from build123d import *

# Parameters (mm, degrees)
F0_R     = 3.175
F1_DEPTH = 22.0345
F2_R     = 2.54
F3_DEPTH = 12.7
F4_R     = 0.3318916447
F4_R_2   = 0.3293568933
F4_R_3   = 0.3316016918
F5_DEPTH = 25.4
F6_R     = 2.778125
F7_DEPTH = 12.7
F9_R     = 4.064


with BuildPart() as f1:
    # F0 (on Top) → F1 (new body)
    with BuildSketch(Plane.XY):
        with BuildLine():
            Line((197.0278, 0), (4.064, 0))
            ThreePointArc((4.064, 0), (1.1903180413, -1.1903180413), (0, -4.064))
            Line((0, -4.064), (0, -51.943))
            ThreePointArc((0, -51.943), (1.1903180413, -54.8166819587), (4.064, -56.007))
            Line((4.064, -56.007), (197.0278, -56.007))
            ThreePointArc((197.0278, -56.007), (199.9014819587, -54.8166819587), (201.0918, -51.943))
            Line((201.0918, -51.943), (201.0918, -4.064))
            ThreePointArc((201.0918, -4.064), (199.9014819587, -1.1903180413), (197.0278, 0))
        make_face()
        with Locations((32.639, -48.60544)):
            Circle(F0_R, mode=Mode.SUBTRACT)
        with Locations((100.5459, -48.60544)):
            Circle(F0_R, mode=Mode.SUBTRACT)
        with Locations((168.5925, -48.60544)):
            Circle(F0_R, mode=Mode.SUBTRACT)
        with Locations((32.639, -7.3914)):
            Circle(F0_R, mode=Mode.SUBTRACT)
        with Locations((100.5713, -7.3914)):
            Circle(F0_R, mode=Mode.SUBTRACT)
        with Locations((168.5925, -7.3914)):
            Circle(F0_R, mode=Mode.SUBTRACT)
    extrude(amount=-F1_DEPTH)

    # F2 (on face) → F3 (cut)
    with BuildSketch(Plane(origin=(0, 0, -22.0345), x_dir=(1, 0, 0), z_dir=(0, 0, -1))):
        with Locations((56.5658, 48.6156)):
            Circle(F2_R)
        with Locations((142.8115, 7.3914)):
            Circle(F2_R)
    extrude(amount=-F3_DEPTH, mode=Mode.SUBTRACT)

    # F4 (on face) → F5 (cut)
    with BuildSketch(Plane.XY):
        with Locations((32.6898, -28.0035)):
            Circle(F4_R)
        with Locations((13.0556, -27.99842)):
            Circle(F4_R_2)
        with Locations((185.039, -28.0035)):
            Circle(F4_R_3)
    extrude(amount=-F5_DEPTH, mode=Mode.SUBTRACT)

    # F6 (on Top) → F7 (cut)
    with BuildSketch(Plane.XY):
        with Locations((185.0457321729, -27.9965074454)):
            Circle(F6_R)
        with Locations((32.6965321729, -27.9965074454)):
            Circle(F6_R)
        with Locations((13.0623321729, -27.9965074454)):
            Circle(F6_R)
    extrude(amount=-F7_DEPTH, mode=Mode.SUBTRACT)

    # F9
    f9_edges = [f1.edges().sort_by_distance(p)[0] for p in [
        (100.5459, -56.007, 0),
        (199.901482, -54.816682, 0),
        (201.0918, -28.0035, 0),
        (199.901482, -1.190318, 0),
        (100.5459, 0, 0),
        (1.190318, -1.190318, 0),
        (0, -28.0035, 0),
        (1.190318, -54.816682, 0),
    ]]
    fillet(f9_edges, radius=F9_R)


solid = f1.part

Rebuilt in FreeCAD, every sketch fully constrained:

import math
import FreeCAD as App
import Part
import Sketcher
Q = App.Units.Quantity


def edges_at(feature, points):
    """Names of the edges that pass closest to the given points."""
    edges = feature.Shape.Edges
    near = lambda p: min(range(len(edges)), key=lambda i: edges[i].distToShape(Part.Vertex(*p))[0])
    return sorted({f"Edge{near(p) + 1}" for p in points})

doc = App.newDocument("Part")
body = doc.addObject("PartDesign::Body", "Body")

# Sketch on XY plane
sketch1 = doc.addObject("Sketcher::SketchObject", "Sketch")
body.addObject(sketch1)
sketch1.AttachmentSupport = (doc.XY_Plane, [""])
sketch1.MapMode = "FlatFace"
sketch1.addGeometry([
    Part.LineSegment(App.Vector(197, 0, 0), App.Vector(4.1, 0, 0)),  # 0
    Part.ArcOfCircle(Part.Circle(App.Vector(4.1, -4.1, 0), App.Vector(0, 0, 1), 4.1), math.radians(90), math.radians(180)),  # 1
    Part.LineSegment(App.Vector(0, -4.1, 0), App.Vector(0, -51.9, 0)),  # 2
    Part.ArcOfCircle(Part.Circle(App.Vector(4.1, -51.9, 0), App.Vector(0, 0, 1), 4.1), math.radians(180), math.radians(270)),  # 3
    Part.LineSegment(App.Vector(4.1, -56, 0), App.Vector(197, -56, 0)),  # 4
    Part.ArcOfCircle(Part.Circle(App.Vector(197, -51.9, 0), App.Vector(0, 0, 1), 4.1), math.radians(-90), math.radians(0)),  # 5
    Part.LineSegment(App.Vector(201.1, -51.9, 0), App.Vector(201.1, -4.1, 0)),  # 6
    Part.ArcOfCircle(Part.Circle(App.Vector(197, -4.1, 0), App.Vector(0, 0, 1), 4.1), math.radians(0), math.radians(90)),  # 7
    Part.Circle(App.Vector(32.6, -48.6, 0), App.Vector(0, 0, 1), 3.2),  # 8
    Part.Circle(App.Vector(100.5, -48.6, 0), App.Vector(0, 0, 1), 3.2),  # 9
    Part.Circle(App.Vector(168.6, -48.6, 0), App.Vector(0, 0, 1), 3.2),  # 10
    Part.Circle(App.Vector(32.6, -7.4, 0), App.Vector(0, 0, 1), 3.2),  # 11
    Part.Circle(App.Vector(100.6, -7.4, 0), App.Vector(0, 0, 1), 3.2),  # 12
    Part.Circle(App.Vector(168.6, -7.4, 0), App.Vector(0, 0, 1), 3.2),  # 13
], False)
sketch1.addConstraint([
    Sketcher.Constraint("Tangent", 0, 2, 1, 1),
    Sketcher.Constraint("Tangent", 1, 2, 2, 1),
    Sketcher.Constraint("Tangent", 2, 2, 3, 1),
    Sketcher.Constraint("Tangent", 3, 2, 4, 1),
    Sketcher.Constraint("Tangent", 4, 2, 5, 1),
    Sketcher.Constraint("Tangent", 5, 2, 6, 1),
    Sketcher.Constraint("Tangent", 6, 2, 7, 1),
    Sketcher.Constraint("Tangent", 7, 2, 0, 1),
    Sketcher.Constraint("Horizontal", 0),
    Sketcher.Constraint("Vertical", 2),
    Sketcher.Constraint("Horizontal", 4),
    Sketcher.Constraint("Vertical", 6),
    Sketcher.Constraint("Equal", 1, 3),
    Sketcher.Constraint("Equal", 3, 5),
    Sketcher.Constraint("Equal", 5, 7),
    Sketcher.Constraint("Equal", 8, 9),
    Sketcher.Constraint("Equal", 9, 10),
    Sketcher.Constraint("Equal", 10, 11),
    Sketcher.Constraint("Equal", 11, 12),
    Sketcher.Constraint("Equal", 12, 13),
    Sketcher.Constraint("PointOnObject", 0, 2, -1),
    Sketcher.Constraint("PointOnObject", 1, 2, -2),
    Sketcher.Constraint("Horizontal", 8, 3, 9, 3),
    Sketcher.Constraint("Horizontal", 9, 3, 10, 3),
    Sketcher.Constraint("Horizontal", 11, 3, 12, 3),
    Sketcher.Constraint("Horizontal", 12, 3, 13, 3),
    Sketcher.Constraint("Vertical", 8, 3, 11, 3),
    Sketcher.Constraint("Vertical", 10, 3, 13, 3),
    Sketcher.Constraint("Diameter", 8, Q("0.25 in")),
    Sketcher.Constraint("Radius", 1, Q("0.16 in")),
    Sketcher.Constraint("DistanceX", 0, 2, 0, 1, Q("7.597 in")),
    Sketcher.Constraint("DistanceY", 2, 2, 2, 1, Q("1.885 in")),
    Sketcher.Constraint("DistanceX", -1, 1, 8, 3, Q("1.285 in")),
    Sketcher.Constraint("DistanceY", 11, 3, -1, 1, Q("0.291 in")),
    Sketcher.Constraint("DistanceX", 9, 3, 10, 3, Q("2.679 in")),
    Sketcher.Constraint("DistanceX", 9, 3, 12, 3, Q("0.001 in")),
    Sketcher.Constraint("DistanceY", 8, 3, -1, 1, Q("1.9136 in")),
    Sketcher.Constraint("DistanceX", -1, 1, 9, 3, Q("3.9585 in")),
])
pad1 = doc.addObject("PartDesign::Pad", "Pad")
body.addObject(pad1)
pad1.Profile = sketch1
pad1.Length = Q("0.8675 in")
pad1.Reversed = True

# Sketch on XY plane
sketch2 = doc.addObject("Sketcher::SketchObject", "Sketch001")
body.addObject(sketch2)
sketch2.AttachmentSupport = (doc.XY_Plane, [""])
sketch2.MapMode = "FlatFace"
sketch2.AttachmentOffset = App.Placement(App.Vector(0, 0, -0.8675 * 25.4), App.Rotation())
sketch2.addGeometry([
    Part.Circle(App.Vector(56.6, -48.6, 0), App.Vector(0, 0, 1), 2.5),
    Part.Circle(App.Vector(142.8, -7.4, 0), App.Vector(0, 0, 1), 2.5),
], False)
sketch2.addConstraint([
    Sketcher.Constraint("Equal", 0, 1),
    Sketcher.Constraint("Diameter", 0, Q("0.2 in")),
    Sketcher.Constraint("DistanceX", -1, 1, 0, 3, Q("2.227 in")),
    Sketcher.Constraint("DistanceY", 0, 3, -1, 1, Q("1.914 in")),
    Sketcher.Constraint("DistanceY", 1, 3, -1, 1, Q("0.291 in")),
    Sketcher.Constraint("DistanceX", -1, 1, 1, 3, Q("5.6225 in")),
])
pocket1 = doc.addObject("PartDesign::Pocket", "Pocket")
body.addObject(pocket1)
pocket1.Profile = sketch2
pocket1.Length = Q("0.5 in")
pocket1.Reversed = True

# Sketch on XY plane
sketch3 = doc.addObject("Sketcher::SketchObject", "Sketch002")
body.addObject(sketch3)
sketch3.AttachmentSupport = (doc.XY_Plane, [""])
sketch3.MapMode = "FlatFace"
sketch3.addGeometry([
    Part.Circle(App.Vector(32.69, -28, 0), App.Vector(0, 0, 1), 0.33),
    Part.Circle(App.Vector(13.06, -28, 0), App.Vector(0, 0, 1), 0.33),
    Part.Circle(App.Vector(185.04, -28, 0), App.Vector(0, 0, 1), 0.33),
], False)
sketch3.addConstraint([
    Sketcher.Constraint("Horizontal", 0, 3, 2, 3),
    Sketcher.Constraint("DistanceX", -1, 1, 0, 3, Q("1.287 in")),
    Sketcher.Constraint("DistanceX", -1, 1, 1, 3, Q("0.514 in")),
    Sketcher.Constraint("DistanceX", -1, 1, 2, 3, Q("7.285 in")),
    Sketcher.Constraint("Diameter", 0, Q("0.663783 mm")),
    Sketcher.Constraint("Diameter", 1, Q("0.658714 mm")),
    Sketcher.Constraint("Diameter", 2, Q("0.663203 mm")),
    Sketcher.Constraint("DistanceY", 0, 3, -1, 1, Q("1.1025 in")),
    Sketcher.Constraint("DistanceY", 1, 3, -1, 1, Q("1.1023 in")),
])
pocket2 = doc.addObject("PartDesign::Pocket", "Pocket001")
body.addObject(pocket2)
pocket2.Profile = sketch3
pocket2.Length = Q("1 in")

# Sketch on XY plane
sketch4 = doc.addObject("Sketcher::SketchObject", "Sketch003")
body.addObject(sketch4)
sketch4.AttachmentSupport = (doc.XY_Plane, [""])
sketch4.MapMode = "FlatFace"
sketch4.addGeometry([
    Part.Circle(App.Vector(185, -28, 0), App.Vector(0, 0, 1), 2.8),
    Part.Circle(App.Vector(32.7, -28, 0), App.Vector(0, 0, 1), 2.8),
    Part.Circle(App.Vector(13.1, -28, 0), App.Vector(0, 0, 1), 2.8),
], False)
sketch4.addConstraint([
    Sketcher.Constraint("Equal", 0, 1),
    Sketcher.Constraint("Equal", 1, 2),
    Sketcher.Constraint("Horizontal", 0, 3, 1, 3),
    Sketcher.Constraint("Horizontal", 1, 3, 2, 3),
    Sketcher.Constraint("Diameter", 0, Q("0.21875 in")),
    Sketcher.Constraint("DistanceX", 1, 3, 0, 3, Q("5.998 in")),
    Sketcher.Constraint("DistanceX", 2, 3, 1, 3, Q("0.773 in")),
    Sketcher.Constraint("DistanceX", -1, 1, 0, 3, Q("185.045732 mm")),
    Sketcher.Constraint("DistanceY", 0, 3, -1, 1, Q("27.996507 mm")),
])
pocket3 = doc.addObject("PartDesign::Pocket", "Pocket002")
body.addObject(pocket3)
pocket3.Profile = sketch4
pocket3.Length = Q("0.5 in")
doc.recompute()

fillet = doc.addObject("PartDesign::Fillet", "Fillet")
body.addObject(fillet)
fillet.Base = (pocket3, edges_at(pocket3, [
    (100.546, -56.007, 0),
    (199.901, -54.817, 0),
    (201.092, -28.003, 0),
    (199.901, -1.19, 0),
    (100.546, 0, 0),
    (1.19, -1.19, 0),
    (0, -28.003, 0),
    (1.19, -54.817, 0),
]))
fillet.Radius = Q("0.16 in")

doc.recompute()
